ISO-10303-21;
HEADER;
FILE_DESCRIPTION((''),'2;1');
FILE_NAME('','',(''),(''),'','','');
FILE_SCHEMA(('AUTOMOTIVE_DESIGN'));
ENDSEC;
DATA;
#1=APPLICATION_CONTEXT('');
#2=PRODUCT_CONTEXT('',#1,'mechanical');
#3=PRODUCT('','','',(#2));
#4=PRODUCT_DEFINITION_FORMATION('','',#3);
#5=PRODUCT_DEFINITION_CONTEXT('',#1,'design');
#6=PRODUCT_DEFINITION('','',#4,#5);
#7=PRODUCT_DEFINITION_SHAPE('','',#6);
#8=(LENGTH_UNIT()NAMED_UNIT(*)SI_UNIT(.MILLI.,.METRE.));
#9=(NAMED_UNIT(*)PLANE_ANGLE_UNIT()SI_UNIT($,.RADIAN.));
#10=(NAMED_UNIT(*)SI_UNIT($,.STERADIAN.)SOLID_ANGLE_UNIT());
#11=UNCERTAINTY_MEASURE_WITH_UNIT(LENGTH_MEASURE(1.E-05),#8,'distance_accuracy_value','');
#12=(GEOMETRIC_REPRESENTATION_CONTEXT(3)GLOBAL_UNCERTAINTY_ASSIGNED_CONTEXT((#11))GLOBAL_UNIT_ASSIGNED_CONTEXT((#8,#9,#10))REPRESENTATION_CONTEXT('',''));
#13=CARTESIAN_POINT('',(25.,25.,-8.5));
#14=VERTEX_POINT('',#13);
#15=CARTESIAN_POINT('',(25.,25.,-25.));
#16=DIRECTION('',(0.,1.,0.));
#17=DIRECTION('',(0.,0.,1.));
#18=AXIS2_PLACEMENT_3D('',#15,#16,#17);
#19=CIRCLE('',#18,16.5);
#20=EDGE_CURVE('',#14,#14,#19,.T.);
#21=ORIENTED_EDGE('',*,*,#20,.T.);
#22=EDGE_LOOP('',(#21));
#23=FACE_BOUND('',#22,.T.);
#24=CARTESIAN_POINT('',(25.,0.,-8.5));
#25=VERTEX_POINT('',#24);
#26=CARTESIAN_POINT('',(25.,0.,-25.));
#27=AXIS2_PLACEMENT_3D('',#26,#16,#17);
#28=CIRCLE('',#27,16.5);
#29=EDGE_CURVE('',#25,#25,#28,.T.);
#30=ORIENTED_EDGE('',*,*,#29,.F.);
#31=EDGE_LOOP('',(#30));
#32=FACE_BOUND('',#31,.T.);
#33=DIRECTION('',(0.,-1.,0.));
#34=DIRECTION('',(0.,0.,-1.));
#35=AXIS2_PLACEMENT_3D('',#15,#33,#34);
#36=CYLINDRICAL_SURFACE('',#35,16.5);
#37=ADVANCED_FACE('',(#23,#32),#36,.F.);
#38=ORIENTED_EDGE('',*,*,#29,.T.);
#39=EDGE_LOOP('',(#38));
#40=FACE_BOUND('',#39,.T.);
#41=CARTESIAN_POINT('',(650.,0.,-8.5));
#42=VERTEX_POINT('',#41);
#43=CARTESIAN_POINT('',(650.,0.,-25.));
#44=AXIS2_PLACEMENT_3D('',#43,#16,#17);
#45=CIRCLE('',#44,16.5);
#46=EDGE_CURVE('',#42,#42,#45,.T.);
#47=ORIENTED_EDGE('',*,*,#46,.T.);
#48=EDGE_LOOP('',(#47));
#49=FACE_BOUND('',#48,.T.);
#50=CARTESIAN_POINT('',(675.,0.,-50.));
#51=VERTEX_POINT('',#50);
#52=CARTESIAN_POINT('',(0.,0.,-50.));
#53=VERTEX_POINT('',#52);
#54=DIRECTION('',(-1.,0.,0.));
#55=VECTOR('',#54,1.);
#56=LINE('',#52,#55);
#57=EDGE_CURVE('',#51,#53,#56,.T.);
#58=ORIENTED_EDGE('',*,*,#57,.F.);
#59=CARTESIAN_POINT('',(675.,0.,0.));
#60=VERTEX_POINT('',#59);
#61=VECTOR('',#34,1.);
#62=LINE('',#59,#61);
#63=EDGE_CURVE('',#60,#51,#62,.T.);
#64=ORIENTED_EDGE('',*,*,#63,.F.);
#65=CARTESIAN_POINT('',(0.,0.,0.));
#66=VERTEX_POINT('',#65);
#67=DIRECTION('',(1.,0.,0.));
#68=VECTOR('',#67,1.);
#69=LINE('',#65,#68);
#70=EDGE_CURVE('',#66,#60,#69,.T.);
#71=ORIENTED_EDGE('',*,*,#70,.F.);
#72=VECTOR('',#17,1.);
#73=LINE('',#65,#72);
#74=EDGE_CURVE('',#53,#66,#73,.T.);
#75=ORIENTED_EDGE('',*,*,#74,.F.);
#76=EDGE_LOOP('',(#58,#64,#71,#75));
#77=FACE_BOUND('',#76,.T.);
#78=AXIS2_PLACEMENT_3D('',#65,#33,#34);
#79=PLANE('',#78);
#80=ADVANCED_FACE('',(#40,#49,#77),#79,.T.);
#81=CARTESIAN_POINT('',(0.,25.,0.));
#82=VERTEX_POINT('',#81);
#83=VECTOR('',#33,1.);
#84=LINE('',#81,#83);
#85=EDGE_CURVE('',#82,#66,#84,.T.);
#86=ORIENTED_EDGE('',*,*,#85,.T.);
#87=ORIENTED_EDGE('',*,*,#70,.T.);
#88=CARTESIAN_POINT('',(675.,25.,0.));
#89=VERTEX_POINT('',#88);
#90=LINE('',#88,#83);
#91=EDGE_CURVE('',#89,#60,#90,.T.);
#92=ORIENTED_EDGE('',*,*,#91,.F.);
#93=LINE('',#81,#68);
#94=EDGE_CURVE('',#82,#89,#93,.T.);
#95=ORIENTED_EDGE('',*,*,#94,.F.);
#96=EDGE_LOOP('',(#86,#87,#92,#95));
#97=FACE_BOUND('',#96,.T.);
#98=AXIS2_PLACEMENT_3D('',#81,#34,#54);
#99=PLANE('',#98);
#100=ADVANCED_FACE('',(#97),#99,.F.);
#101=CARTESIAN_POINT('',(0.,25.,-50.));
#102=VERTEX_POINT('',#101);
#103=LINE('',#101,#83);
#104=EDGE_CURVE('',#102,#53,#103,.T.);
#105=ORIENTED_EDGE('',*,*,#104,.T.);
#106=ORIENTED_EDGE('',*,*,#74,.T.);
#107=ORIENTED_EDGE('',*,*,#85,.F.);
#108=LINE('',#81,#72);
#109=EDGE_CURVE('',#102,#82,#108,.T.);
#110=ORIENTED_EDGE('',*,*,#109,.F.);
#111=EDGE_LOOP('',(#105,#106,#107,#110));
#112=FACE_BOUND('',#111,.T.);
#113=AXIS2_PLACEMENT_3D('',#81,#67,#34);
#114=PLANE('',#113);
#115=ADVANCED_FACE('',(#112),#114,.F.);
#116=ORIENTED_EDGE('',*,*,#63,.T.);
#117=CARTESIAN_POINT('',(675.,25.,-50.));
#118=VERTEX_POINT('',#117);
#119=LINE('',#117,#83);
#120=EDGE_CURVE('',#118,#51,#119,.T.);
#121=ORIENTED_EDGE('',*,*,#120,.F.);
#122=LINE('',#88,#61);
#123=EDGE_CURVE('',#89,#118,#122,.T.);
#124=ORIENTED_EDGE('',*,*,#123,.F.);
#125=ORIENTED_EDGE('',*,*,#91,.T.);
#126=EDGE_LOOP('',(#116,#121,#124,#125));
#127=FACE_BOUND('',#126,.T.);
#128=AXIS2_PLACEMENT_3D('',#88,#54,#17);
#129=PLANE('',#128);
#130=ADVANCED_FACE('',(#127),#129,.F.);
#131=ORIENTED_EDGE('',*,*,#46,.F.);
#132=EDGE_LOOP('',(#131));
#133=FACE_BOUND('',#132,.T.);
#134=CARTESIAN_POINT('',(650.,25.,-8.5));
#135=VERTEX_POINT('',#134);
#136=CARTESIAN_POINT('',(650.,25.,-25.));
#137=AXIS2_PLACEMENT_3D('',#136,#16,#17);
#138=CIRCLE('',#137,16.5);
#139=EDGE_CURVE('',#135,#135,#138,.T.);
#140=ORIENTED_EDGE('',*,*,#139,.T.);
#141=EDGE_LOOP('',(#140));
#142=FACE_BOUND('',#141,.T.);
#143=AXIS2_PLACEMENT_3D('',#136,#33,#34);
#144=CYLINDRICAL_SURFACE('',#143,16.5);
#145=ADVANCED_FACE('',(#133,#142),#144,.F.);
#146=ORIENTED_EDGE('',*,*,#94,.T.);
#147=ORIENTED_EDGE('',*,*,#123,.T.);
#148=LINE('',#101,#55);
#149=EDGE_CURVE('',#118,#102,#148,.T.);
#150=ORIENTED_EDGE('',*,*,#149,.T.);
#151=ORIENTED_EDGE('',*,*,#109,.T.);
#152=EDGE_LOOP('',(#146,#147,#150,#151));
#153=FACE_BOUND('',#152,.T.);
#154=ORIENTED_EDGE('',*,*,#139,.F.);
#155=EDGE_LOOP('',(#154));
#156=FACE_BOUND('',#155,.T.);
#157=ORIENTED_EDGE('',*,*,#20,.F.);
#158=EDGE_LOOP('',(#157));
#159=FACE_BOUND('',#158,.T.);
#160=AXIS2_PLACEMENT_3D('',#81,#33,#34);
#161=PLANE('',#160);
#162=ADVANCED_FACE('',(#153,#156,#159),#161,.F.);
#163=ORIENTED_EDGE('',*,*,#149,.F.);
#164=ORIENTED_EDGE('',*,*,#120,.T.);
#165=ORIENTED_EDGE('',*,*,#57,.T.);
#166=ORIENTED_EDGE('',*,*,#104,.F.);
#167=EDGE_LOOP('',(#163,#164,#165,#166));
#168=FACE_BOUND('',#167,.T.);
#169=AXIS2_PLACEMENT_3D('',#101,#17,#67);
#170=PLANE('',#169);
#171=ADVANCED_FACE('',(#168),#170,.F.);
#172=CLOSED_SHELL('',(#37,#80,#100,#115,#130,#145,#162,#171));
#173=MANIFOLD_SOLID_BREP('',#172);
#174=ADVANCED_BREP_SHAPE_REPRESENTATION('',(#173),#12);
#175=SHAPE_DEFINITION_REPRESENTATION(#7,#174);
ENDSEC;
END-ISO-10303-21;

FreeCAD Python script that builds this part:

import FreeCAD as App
import Part
import Sketcher

V = App.Vector


def add_polygon(sketch, points):
    """Adds a closed chain of lines whose ends are joined by coincident constraints."""
    first, n = sketch.GeometryCount, len(points)
    for a, b in zip(points, points[1:] + points[:1]):
        sketch.addGeometry(Part.LineSegment(App.Vector(*a, 0), App.Vector(*b, 0)), False)
    for i in range(n):
        sketch.addConstraint(Sketcher.Constraint("Coincident", first + i, 2, first + (i + 1) % n, 1))

doc = App.newDocument("Part")
body = doc.addObject("PartDesign::Body", "Body")

# Sketch on XZ plane
sketch1 = body.newObject("Sketcher::SketchObject", "Sketch")
sketch1.AttachmentSupport = (doc.getObject("XZ_Plane"), [""])
sketch1.MapMode = "FlatFace"
add_polygon(sketch1, [(0, -50), (0, 0), (675, 0), (675, -50)])  # lines 0-3
sketch1.addGeometry(Part.Circle(V(25, -25, 0), V(0, 0, 1), 16), False)  # 4
sketch1.addGeometry(Part.Circle(V(650, -25, 0), V(0, 0, 1), 16), False)  # 5
sketch1.addConstraint(Sketcher.Constraint("Vertical", 0))
sketch1.addConstraint(Sketcher.Constraint("Horizontal", 1))
sketch1.addConstraint(Sketcher.Constraint("Vertical", 2))
sketch1.addConstraint(Sketcher.Constraint("Horizontal", 3))
sketch1.addConstraint(Sketcher.Constraint("Coincident", 0, 2, -1, 1))
sketch1.addConstraint(Sketcher.Constraint("Equal", 4, 5))
sketch1.addConstraint(Sketcher.Constraint("Horizontal", 4, 3, 5, 3))
sketch1.addConstraint(Sketcher.Constraint("Diameter", 4, 33.0))
sketch1.addConstraint(Sketcher.Constraint("DistanceX", 1, 1, 1, 2, 675.0))
sketch1.addConstraint(Sketcher.Constraint("DistanceY", 0, 1, 0, 2, 50.0))
sketch1.addConstraint(Sketcher.Constraint("DistanceX", -1, 1, 4, 3, 25.0))
sketch1.addConstraint(Sketcher.Constraint("DistanceY", 4, 3, -1, 1, 25.0))
sketch1.addConstraint(Sketcher.Constraint("DistanceX", -1, 1, 5, 3, 650.0))
pad1 = body.newObject("PartDesign::Pad", "Pad")
pad1.Profile = sketch1
pad1.Length = 25
pad1.Reversed = True

doc.recompute()
